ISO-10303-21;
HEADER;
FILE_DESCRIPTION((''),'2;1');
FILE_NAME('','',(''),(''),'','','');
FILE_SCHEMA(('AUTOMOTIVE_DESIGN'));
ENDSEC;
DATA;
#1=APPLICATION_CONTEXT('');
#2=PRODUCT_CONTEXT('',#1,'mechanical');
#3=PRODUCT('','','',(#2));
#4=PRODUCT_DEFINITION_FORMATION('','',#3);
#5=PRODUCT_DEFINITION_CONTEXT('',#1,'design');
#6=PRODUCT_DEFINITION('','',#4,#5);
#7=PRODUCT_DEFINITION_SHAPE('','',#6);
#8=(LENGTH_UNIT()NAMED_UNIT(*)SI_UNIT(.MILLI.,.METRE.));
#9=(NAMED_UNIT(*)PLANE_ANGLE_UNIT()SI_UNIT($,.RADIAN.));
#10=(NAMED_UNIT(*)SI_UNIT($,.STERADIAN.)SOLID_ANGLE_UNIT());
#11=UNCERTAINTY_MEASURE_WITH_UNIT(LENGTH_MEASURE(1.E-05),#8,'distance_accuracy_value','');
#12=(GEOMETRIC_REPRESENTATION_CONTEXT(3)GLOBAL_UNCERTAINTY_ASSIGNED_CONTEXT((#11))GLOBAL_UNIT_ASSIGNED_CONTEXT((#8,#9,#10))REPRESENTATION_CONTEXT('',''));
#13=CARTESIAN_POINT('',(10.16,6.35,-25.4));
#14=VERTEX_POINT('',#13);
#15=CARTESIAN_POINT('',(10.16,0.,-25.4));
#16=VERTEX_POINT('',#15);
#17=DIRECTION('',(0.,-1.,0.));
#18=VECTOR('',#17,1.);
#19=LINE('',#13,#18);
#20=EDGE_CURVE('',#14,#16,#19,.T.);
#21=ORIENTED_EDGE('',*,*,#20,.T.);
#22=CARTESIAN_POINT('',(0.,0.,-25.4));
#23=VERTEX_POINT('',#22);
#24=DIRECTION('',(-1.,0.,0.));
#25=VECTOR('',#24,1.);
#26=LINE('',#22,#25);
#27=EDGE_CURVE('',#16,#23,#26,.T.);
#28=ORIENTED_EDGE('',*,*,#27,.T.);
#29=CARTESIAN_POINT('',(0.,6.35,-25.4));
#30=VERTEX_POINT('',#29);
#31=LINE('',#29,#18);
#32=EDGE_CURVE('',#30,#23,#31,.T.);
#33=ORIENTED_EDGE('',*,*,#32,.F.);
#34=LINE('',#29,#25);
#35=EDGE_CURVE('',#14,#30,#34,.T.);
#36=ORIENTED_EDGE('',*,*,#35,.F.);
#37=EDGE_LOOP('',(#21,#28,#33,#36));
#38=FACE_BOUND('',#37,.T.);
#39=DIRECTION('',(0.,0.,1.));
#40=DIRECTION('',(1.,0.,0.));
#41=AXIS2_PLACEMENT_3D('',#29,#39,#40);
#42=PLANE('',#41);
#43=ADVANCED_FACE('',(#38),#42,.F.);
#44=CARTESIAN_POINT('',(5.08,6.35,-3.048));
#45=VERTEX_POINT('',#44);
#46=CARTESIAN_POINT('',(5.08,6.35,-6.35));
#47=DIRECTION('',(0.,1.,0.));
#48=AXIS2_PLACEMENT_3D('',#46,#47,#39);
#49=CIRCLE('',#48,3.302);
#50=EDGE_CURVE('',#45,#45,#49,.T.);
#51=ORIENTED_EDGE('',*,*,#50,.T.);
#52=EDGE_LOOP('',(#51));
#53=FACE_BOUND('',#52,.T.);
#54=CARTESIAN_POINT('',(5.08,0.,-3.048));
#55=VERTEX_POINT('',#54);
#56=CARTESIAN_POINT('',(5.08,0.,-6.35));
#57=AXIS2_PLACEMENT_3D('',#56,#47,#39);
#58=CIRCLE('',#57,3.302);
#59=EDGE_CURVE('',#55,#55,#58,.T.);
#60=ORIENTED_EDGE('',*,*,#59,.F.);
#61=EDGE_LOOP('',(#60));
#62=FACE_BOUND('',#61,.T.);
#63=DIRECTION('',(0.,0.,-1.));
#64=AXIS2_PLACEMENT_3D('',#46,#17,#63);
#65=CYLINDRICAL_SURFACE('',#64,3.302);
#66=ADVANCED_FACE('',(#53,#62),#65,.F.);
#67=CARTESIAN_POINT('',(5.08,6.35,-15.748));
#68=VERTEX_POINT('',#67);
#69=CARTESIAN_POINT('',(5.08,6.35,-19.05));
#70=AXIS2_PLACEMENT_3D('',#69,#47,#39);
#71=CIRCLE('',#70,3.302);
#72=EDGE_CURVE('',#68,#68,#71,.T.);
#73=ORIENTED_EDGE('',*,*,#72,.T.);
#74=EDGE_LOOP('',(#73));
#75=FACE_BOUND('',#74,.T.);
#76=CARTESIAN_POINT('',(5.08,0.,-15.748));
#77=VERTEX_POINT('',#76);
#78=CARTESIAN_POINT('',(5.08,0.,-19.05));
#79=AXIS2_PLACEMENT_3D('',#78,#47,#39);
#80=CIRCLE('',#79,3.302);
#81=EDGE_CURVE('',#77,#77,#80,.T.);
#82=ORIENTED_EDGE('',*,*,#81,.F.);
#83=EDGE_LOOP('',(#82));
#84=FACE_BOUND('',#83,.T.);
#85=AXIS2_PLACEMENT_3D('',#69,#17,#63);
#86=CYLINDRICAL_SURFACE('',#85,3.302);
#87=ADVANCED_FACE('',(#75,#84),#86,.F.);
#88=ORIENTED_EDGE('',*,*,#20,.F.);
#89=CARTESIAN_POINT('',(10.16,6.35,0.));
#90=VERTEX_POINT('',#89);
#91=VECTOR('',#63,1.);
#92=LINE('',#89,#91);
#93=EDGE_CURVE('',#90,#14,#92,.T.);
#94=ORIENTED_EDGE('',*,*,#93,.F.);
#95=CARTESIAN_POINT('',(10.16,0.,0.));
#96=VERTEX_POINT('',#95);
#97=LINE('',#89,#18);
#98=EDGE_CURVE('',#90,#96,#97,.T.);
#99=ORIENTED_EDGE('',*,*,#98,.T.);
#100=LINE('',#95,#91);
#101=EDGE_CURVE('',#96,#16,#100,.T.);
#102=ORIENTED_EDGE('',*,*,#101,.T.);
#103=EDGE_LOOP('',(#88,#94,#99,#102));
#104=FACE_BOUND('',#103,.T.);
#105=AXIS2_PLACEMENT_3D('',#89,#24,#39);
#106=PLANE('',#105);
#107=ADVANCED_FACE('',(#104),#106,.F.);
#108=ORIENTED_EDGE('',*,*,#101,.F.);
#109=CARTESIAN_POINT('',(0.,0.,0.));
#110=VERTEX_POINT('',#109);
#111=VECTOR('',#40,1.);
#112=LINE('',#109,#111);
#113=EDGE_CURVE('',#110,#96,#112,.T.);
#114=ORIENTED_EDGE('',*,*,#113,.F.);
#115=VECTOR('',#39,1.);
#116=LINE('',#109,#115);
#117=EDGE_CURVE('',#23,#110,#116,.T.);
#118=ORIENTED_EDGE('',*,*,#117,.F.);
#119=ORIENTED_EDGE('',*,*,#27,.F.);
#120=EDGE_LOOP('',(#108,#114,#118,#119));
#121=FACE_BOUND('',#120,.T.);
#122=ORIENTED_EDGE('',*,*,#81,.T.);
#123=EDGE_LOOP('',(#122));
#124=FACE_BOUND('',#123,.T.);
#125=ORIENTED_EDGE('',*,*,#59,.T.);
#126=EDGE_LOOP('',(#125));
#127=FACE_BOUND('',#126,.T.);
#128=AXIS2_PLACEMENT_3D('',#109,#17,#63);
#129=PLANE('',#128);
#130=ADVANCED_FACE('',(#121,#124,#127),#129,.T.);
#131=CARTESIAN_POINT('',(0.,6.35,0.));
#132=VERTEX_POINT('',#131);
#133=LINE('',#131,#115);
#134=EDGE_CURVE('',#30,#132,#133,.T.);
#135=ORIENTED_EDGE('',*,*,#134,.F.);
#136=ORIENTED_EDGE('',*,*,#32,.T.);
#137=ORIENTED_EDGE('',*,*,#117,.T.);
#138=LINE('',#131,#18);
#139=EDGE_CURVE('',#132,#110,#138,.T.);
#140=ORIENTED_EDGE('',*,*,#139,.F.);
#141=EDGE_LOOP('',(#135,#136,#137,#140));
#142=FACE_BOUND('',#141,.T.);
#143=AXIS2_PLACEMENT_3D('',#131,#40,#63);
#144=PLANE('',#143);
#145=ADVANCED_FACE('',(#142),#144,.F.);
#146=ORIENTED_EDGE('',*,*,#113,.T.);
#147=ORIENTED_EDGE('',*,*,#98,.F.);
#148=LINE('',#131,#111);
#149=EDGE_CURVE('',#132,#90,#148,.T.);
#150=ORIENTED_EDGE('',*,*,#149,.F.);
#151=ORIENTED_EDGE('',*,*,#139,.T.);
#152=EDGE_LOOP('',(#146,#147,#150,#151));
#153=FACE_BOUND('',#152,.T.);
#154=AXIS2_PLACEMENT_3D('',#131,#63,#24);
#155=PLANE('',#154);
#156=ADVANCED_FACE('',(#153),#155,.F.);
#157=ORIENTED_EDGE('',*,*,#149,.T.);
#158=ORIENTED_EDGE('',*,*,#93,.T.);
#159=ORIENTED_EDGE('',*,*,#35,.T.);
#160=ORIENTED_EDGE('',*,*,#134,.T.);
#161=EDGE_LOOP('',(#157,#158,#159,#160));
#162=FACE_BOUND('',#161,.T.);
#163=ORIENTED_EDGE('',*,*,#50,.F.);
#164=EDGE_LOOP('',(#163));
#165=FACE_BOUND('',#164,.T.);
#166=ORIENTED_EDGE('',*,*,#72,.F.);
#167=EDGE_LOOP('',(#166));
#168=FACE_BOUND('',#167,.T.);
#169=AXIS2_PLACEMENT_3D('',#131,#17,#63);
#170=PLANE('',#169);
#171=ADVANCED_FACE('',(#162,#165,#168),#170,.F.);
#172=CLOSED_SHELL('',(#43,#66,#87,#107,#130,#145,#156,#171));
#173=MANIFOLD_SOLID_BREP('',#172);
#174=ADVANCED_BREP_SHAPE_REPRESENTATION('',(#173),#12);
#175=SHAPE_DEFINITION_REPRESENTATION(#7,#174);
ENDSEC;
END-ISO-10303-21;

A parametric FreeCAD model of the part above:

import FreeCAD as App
import Part
import Sketcher
from FreeCAD import Vector
Q = App.Units.Quantity


def add_polygon(sketch, points):
    """Adds a closed chain of lines whose ends are joined by coincident constraints."""
    first, n = sketch.GeometryCount, len(points)
    for a, b in zip(points, points[1:] + points[:1]):
        sketch.addGeometry(Part.LineSegment(App.Vector(*a, 0), App.Vector(*b, 0)), False)
    for i in range(n):
        sketch.addConstraint(Sketcher.Constraint("Coincident", first + i, 2, first + (i + 1) % n, 1))

doc = App.newDocument("Part")
body = doc.addObject("PartDesign::Body", "Body")

# Sketch on XZ plane
sketch1 = body.newObject("Sketcher::SketchObject", "Sketch")
sketch1.AttachmentSupport = (doc.getObject("XZ_Plane"), [""])
sketch1.MapMode = "FlatFace"
add_polygon(sketch1, [(0, -25.4), (0, 0), (10.16, 0), (10.16, -25.4)])  # lines 0-3
sketch1.addGeometry(Part.Circle(Vector(5.08, -6.35, 0), Vector(0, 0, 1), 3.302), False)  # 4
sketch1.addGeometry(Part.Circle(Vector(5.08, -19.05, 0), Vector(0, 0, 1), 3.302), False)  # 5
sketch1.addConstraint([
    Sketcher.Constraint("Vertical", 0),
    Sketcher.Constraint("Horizontal", 1),
    Sketcher.Constraint("Vertical", 2),
    Sketcher.Constraint("Horizontal", 3),
    Sketcher.Constraint("Coincident", 0, 2, -1, 1),
    Sketcher.Constraint("Equal", 4, 5),
    Sketcher.Constraint("Vertical", 4, 3, 5, 3),
    Sketcher.Constraint("Diameter", 4, Q("0.26 in")),
    Sketcher.Constraint("DistanceY", 0, 1, 0, 2, Q("1 in")),
    Sketcher.Constraint("DistanceX", 1, 1, 1, 2, Q("0.4 in")),
    Sketcher.Constraint("DistanceX", -1, 1, 4, 3, Q("0.2 in")),
    Sketcher.Constraint("DistanceY", 5, 3, 4, 3, Q("0.5 in")),
    Sketcher.Constraint("DistanceY", 4, 3, -1, 1, Q("0.25 in")),
])
pad1 = body.newObject("PartDesign::Pad", "Pad")
pad1.Profile = sketch1
pad1.Length = Q("0.25 in")
pad1.Reversed = True

doc.recompute()
